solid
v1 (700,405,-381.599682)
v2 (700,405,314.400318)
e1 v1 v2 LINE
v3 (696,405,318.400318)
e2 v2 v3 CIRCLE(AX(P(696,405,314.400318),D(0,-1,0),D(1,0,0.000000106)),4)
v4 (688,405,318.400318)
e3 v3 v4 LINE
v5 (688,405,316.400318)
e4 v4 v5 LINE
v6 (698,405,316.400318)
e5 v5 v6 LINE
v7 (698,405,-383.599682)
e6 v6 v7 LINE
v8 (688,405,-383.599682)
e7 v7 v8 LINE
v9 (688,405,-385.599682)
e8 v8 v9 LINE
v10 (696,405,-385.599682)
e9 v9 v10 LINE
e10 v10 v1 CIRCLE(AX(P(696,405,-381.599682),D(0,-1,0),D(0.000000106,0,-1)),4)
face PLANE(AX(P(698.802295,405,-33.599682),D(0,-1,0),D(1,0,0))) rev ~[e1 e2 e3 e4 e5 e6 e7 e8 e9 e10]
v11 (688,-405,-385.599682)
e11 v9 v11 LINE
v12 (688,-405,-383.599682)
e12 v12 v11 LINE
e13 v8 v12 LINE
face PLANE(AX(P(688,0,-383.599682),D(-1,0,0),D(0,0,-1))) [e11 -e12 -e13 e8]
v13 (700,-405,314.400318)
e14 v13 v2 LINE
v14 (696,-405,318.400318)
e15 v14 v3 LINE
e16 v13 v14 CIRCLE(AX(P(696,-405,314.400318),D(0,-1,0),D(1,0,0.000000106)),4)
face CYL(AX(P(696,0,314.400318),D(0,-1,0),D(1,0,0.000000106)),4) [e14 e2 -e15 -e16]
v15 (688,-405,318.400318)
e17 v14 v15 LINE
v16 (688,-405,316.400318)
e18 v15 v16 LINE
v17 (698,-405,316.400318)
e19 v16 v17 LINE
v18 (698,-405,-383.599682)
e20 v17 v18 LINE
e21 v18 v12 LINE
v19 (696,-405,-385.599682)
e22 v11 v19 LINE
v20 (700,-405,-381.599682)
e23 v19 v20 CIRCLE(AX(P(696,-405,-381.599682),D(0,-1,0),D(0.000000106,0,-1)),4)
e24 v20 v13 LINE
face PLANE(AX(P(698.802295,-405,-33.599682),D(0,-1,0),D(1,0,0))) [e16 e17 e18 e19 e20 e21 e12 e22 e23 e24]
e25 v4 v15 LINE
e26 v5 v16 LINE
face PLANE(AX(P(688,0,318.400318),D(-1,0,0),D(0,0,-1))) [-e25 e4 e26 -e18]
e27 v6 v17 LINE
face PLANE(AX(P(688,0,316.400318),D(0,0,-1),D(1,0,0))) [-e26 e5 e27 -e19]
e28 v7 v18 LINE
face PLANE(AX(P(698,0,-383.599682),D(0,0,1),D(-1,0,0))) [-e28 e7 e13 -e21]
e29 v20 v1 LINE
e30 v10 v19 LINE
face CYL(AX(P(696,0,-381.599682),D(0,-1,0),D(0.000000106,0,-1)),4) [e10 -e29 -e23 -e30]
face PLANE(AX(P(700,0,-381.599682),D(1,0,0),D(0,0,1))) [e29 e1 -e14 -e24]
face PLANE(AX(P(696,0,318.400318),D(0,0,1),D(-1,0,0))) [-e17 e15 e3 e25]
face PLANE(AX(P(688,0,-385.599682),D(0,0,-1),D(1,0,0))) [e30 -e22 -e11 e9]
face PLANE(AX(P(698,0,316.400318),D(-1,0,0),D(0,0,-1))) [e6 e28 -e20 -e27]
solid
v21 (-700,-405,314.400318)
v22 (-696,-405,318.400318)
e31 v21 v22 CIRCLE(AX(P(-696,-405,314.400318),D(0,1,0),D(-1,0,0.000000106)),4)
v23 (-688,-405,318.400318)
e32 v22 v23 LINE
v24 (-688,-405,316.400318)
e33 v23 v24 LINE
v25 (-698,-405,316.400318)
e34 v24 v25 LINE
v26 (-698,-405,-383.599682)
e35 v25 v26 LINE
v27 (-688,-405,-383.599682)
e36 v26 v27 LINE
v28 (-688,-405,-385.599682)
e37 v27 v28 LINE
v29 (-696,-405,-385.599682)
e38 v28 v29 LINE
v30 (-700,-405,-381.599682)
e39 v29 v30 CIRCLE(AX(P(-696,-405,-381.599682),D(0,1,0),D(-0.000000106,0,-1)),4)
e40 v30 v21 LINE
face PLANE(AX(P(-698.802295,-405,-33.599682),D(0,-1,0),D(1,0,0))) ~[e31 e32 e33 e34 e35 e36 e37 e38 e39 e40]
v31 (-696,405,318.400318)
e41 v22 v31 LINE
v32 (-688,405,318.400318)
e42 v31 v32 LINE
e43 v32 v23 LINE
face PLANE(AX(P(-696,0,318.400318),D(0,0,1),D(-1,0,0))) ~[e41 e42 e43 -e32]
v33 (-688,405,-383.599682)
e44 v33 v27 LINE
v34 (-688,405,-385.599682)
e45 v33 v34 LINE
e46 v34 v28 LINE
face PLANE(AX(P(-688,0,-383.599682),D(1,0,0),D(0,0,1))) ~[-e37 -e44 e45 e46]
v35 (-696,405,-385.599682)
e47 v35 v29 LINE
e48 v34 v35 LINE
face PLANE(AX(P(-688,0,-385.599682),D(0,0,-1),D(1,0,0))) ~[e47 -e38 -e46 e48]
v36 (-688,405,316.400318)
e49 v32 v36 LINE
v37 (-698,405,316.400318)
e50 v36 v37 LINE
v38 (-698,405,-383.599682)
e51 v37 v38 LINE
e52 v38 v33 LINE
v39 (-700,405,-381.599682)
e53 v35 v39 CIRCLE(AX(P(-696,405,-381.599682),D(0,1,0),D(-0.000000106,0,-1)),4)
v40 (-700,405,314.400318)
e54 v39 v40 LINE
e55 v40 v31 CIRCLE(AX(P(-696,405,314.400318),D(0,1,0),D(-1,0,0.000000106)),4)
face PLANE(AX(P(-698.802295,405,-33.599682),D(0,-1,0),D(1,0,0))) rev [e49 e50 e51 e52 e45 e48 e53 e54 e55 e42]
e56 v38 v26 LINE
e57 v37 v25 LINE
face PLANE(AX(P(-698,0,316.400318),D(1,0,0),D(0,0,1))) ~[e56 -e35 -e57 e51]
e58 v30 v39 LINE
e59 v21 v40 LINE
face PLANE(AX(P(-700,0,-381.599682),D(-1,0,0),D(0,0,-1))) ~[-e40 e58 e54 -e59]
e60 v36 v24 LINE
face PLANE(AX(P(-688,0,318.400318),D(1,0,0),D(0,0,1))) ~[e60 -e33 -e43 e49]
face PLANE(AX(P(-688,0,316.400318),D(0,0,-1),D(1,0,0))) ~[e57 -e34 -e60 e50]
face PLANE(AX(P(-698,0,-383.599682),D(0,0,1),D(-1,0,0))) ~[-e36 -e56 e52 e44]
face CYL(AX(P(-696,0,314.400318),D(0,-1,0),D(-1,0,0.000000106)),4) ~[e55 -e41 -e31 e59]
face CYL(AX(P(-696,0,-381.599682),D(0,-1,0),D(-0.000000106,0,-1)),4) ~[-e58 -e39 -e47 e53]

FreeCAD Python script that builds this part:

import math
import FreeCAD as App
import Part
import Sketcher

doc = App.newDocument("Part")
params = doc.addObject("Spreadsheet::Sheet", "Params")
for row, (alias, value) in enumerate([
    ("sketch1_radius", "4 mm"),
    ("sketch1_width", "8 mm"),
    ("sketch1_width2", "10 mm"),
    ("sketch1_height", "2 mm"),
    ("sketch1_height2", "700 mm"),
    ("pad1_length", "810 mm"),
], start=1):
    params.set(f"A{row}", alias)
    params.set(f"B{row}", "=" + value)
    params.setAlias(f"B{row}", alias)

body = doc.addObject("PartDesign::Body", "Body")

# Sketch on XZ plane
sketch1 = body.newObject("Sketcher::SketchObject", "Sketch")
sketch1.AttachmentSupport = (doc.getObject("XZ_Plane"), [""])
sketch1.MapMode = "FlatFace"
sketch1.addGeometry([
    Part.LineSegment(App.Vector(696, 318.400318, 0), App.Vector(688, 318.400318, 0)),  # 0
    Part.LineSegment(App.Vector(688, 318.400318, 0), App.Vector(688, 316.400318, 0)),  # 1
    Part.LineSegment(App.Vector(688, 316.400318, 0), App.Vector(698, 316.400318, 0)),  # 2
    Part.LineSegment(App.Vector(698, 316.400318, 0), App.Vector(698, -383.599682, 0)),  # 3
    Part.LineSegment(App.Vector(698, -383.599682, 0), App.Vector(688, -383.599682, 0)),  # 4
    Part.LineSegment(App.Vector(688, -383.599682, 0), App.Vector(688, -385.599682, 0)),  # 5
    Part.LineSegment(App.Vector(688, -385.599682, 0), App.Vector(696, -385.599682, 0)),  # 6
    Part.ArcOfCircle(Part.Circle(App.Vector(696, -381.599682, 0), App.Vector(0, 0, 1), 4), math.radians(-89.999994), math.radians(-0.000006)),  # 7
    Part.LineSegment(App.Vector(700, -381.599682, 0), App.Vector(700, 314.400318, 0)),  # 8
    Part.ArcOfCircle(Part.Circle(App.Vector(696, 314.400318, 0), App.Vector(0, 0, 1), 4), math.radians(0.000006), math.radians(89.999994)),  # 9
], False)
sketch1.addConstraint([
    Sketcher.Constraint("Coincident", 0, 2, 1, 1),
    Sketcher.Constraint("Coincident", 1, 2, 2, 1),
    Sketcher.Constraint("Coincident", 2, 2, 3, 1),
    Sketcher.Constraint("Coincident", 3, 2, 4, 1),
    Sketcher.Constraint("Coincident", 4, 2, 5, 1),
    Sketcher.Constraint("Coincident", 5, 2, 6, 1),
    Sketcher.Constraint("Tangent", 6, 2, 7, 1),
    Sketcher.Constraint("Tangent", 7, 2, 8, 1),
    Sketcher.Constraint("Tangent", 8, 2, 9, 1),
    Sketcher.Constraint("Tangent", 9, 2, 0, 1),
    Sketcher.Constraint("Horizontal", 0),
    Sketcher.Constraint("Vertical", 1),
    Sketcher.Constraint("Horizontal", 2),
    Sketcher.Constraint("Vertical", 3),
    Sketcher.Constraint("Horizontal", 4),
    Sketcher.Constraint("Vertical", 5),
    Sketcher.Constraint("Horizontal", 6),
    Sketcher.Constraint("Vertical", 8),
    Sketcher.Constraint("Equal", 7, 9),
    Sketcher.Constraint("Vertical", 1, 2, 4, 2),
    Sketcher.Constraint("Equal", 1, 5),
    Sketcher.Constraint("Radius", 7, 4.0),
    Sketcher.Constraint("DistanceX", 0, 2, 0, 1, 8.0),
    Sketcher.Constraint("DistanceX", 2, 1, 2, 2, 10.0),
    Sketcher.Constraint("DistanceY", 1, 2, 1, 1, 2.0),
    Sketcher.Constraint("DistanceY", 3, 2, 3, 1, 700.0),
    Sketcher.Constraint("DistanceX", -1, 1, 7, 3, 696.0),
    Sketcher.Constraint("DistanceY", 7, 3, -1, 1, 381.599682),
])
sketch1.setExpression("Constraints[21]", "Params.sketch1_radius")
sketch1.setExpression("Constraints[22]", "Params.sketch1_width")
sketch1.setExpression("Constraints[23]", "Params.sketch1_width2")
sketch1.setExpression("Constraints[24]", "Params.sketch1_height")
sketch1.setExpression("Constraints[25]", "Params.sketch1_height2")
pad1 = body.newObject("PartDesign::Pad", "Pad")
pad1.Profile = sketch1
pad1.setExpression("Length", "Params.pad1_length")
pad1.Midplane = True
body2 = doc.addObject("PartDesign::Body", "Body001")
doc.recompute()

mirroring = doc.addObject("Part::Mirroring", "Mirroring")
mirroring.Source = body
mirroring.Base = App.Vector(0, 0, 0)
mirroring.Normal = App.Vector(1, 0, 0)
body2.BaseFeature = mirroring
doc.recompute()
mirroring.Visibility = False

doc.recompute()
